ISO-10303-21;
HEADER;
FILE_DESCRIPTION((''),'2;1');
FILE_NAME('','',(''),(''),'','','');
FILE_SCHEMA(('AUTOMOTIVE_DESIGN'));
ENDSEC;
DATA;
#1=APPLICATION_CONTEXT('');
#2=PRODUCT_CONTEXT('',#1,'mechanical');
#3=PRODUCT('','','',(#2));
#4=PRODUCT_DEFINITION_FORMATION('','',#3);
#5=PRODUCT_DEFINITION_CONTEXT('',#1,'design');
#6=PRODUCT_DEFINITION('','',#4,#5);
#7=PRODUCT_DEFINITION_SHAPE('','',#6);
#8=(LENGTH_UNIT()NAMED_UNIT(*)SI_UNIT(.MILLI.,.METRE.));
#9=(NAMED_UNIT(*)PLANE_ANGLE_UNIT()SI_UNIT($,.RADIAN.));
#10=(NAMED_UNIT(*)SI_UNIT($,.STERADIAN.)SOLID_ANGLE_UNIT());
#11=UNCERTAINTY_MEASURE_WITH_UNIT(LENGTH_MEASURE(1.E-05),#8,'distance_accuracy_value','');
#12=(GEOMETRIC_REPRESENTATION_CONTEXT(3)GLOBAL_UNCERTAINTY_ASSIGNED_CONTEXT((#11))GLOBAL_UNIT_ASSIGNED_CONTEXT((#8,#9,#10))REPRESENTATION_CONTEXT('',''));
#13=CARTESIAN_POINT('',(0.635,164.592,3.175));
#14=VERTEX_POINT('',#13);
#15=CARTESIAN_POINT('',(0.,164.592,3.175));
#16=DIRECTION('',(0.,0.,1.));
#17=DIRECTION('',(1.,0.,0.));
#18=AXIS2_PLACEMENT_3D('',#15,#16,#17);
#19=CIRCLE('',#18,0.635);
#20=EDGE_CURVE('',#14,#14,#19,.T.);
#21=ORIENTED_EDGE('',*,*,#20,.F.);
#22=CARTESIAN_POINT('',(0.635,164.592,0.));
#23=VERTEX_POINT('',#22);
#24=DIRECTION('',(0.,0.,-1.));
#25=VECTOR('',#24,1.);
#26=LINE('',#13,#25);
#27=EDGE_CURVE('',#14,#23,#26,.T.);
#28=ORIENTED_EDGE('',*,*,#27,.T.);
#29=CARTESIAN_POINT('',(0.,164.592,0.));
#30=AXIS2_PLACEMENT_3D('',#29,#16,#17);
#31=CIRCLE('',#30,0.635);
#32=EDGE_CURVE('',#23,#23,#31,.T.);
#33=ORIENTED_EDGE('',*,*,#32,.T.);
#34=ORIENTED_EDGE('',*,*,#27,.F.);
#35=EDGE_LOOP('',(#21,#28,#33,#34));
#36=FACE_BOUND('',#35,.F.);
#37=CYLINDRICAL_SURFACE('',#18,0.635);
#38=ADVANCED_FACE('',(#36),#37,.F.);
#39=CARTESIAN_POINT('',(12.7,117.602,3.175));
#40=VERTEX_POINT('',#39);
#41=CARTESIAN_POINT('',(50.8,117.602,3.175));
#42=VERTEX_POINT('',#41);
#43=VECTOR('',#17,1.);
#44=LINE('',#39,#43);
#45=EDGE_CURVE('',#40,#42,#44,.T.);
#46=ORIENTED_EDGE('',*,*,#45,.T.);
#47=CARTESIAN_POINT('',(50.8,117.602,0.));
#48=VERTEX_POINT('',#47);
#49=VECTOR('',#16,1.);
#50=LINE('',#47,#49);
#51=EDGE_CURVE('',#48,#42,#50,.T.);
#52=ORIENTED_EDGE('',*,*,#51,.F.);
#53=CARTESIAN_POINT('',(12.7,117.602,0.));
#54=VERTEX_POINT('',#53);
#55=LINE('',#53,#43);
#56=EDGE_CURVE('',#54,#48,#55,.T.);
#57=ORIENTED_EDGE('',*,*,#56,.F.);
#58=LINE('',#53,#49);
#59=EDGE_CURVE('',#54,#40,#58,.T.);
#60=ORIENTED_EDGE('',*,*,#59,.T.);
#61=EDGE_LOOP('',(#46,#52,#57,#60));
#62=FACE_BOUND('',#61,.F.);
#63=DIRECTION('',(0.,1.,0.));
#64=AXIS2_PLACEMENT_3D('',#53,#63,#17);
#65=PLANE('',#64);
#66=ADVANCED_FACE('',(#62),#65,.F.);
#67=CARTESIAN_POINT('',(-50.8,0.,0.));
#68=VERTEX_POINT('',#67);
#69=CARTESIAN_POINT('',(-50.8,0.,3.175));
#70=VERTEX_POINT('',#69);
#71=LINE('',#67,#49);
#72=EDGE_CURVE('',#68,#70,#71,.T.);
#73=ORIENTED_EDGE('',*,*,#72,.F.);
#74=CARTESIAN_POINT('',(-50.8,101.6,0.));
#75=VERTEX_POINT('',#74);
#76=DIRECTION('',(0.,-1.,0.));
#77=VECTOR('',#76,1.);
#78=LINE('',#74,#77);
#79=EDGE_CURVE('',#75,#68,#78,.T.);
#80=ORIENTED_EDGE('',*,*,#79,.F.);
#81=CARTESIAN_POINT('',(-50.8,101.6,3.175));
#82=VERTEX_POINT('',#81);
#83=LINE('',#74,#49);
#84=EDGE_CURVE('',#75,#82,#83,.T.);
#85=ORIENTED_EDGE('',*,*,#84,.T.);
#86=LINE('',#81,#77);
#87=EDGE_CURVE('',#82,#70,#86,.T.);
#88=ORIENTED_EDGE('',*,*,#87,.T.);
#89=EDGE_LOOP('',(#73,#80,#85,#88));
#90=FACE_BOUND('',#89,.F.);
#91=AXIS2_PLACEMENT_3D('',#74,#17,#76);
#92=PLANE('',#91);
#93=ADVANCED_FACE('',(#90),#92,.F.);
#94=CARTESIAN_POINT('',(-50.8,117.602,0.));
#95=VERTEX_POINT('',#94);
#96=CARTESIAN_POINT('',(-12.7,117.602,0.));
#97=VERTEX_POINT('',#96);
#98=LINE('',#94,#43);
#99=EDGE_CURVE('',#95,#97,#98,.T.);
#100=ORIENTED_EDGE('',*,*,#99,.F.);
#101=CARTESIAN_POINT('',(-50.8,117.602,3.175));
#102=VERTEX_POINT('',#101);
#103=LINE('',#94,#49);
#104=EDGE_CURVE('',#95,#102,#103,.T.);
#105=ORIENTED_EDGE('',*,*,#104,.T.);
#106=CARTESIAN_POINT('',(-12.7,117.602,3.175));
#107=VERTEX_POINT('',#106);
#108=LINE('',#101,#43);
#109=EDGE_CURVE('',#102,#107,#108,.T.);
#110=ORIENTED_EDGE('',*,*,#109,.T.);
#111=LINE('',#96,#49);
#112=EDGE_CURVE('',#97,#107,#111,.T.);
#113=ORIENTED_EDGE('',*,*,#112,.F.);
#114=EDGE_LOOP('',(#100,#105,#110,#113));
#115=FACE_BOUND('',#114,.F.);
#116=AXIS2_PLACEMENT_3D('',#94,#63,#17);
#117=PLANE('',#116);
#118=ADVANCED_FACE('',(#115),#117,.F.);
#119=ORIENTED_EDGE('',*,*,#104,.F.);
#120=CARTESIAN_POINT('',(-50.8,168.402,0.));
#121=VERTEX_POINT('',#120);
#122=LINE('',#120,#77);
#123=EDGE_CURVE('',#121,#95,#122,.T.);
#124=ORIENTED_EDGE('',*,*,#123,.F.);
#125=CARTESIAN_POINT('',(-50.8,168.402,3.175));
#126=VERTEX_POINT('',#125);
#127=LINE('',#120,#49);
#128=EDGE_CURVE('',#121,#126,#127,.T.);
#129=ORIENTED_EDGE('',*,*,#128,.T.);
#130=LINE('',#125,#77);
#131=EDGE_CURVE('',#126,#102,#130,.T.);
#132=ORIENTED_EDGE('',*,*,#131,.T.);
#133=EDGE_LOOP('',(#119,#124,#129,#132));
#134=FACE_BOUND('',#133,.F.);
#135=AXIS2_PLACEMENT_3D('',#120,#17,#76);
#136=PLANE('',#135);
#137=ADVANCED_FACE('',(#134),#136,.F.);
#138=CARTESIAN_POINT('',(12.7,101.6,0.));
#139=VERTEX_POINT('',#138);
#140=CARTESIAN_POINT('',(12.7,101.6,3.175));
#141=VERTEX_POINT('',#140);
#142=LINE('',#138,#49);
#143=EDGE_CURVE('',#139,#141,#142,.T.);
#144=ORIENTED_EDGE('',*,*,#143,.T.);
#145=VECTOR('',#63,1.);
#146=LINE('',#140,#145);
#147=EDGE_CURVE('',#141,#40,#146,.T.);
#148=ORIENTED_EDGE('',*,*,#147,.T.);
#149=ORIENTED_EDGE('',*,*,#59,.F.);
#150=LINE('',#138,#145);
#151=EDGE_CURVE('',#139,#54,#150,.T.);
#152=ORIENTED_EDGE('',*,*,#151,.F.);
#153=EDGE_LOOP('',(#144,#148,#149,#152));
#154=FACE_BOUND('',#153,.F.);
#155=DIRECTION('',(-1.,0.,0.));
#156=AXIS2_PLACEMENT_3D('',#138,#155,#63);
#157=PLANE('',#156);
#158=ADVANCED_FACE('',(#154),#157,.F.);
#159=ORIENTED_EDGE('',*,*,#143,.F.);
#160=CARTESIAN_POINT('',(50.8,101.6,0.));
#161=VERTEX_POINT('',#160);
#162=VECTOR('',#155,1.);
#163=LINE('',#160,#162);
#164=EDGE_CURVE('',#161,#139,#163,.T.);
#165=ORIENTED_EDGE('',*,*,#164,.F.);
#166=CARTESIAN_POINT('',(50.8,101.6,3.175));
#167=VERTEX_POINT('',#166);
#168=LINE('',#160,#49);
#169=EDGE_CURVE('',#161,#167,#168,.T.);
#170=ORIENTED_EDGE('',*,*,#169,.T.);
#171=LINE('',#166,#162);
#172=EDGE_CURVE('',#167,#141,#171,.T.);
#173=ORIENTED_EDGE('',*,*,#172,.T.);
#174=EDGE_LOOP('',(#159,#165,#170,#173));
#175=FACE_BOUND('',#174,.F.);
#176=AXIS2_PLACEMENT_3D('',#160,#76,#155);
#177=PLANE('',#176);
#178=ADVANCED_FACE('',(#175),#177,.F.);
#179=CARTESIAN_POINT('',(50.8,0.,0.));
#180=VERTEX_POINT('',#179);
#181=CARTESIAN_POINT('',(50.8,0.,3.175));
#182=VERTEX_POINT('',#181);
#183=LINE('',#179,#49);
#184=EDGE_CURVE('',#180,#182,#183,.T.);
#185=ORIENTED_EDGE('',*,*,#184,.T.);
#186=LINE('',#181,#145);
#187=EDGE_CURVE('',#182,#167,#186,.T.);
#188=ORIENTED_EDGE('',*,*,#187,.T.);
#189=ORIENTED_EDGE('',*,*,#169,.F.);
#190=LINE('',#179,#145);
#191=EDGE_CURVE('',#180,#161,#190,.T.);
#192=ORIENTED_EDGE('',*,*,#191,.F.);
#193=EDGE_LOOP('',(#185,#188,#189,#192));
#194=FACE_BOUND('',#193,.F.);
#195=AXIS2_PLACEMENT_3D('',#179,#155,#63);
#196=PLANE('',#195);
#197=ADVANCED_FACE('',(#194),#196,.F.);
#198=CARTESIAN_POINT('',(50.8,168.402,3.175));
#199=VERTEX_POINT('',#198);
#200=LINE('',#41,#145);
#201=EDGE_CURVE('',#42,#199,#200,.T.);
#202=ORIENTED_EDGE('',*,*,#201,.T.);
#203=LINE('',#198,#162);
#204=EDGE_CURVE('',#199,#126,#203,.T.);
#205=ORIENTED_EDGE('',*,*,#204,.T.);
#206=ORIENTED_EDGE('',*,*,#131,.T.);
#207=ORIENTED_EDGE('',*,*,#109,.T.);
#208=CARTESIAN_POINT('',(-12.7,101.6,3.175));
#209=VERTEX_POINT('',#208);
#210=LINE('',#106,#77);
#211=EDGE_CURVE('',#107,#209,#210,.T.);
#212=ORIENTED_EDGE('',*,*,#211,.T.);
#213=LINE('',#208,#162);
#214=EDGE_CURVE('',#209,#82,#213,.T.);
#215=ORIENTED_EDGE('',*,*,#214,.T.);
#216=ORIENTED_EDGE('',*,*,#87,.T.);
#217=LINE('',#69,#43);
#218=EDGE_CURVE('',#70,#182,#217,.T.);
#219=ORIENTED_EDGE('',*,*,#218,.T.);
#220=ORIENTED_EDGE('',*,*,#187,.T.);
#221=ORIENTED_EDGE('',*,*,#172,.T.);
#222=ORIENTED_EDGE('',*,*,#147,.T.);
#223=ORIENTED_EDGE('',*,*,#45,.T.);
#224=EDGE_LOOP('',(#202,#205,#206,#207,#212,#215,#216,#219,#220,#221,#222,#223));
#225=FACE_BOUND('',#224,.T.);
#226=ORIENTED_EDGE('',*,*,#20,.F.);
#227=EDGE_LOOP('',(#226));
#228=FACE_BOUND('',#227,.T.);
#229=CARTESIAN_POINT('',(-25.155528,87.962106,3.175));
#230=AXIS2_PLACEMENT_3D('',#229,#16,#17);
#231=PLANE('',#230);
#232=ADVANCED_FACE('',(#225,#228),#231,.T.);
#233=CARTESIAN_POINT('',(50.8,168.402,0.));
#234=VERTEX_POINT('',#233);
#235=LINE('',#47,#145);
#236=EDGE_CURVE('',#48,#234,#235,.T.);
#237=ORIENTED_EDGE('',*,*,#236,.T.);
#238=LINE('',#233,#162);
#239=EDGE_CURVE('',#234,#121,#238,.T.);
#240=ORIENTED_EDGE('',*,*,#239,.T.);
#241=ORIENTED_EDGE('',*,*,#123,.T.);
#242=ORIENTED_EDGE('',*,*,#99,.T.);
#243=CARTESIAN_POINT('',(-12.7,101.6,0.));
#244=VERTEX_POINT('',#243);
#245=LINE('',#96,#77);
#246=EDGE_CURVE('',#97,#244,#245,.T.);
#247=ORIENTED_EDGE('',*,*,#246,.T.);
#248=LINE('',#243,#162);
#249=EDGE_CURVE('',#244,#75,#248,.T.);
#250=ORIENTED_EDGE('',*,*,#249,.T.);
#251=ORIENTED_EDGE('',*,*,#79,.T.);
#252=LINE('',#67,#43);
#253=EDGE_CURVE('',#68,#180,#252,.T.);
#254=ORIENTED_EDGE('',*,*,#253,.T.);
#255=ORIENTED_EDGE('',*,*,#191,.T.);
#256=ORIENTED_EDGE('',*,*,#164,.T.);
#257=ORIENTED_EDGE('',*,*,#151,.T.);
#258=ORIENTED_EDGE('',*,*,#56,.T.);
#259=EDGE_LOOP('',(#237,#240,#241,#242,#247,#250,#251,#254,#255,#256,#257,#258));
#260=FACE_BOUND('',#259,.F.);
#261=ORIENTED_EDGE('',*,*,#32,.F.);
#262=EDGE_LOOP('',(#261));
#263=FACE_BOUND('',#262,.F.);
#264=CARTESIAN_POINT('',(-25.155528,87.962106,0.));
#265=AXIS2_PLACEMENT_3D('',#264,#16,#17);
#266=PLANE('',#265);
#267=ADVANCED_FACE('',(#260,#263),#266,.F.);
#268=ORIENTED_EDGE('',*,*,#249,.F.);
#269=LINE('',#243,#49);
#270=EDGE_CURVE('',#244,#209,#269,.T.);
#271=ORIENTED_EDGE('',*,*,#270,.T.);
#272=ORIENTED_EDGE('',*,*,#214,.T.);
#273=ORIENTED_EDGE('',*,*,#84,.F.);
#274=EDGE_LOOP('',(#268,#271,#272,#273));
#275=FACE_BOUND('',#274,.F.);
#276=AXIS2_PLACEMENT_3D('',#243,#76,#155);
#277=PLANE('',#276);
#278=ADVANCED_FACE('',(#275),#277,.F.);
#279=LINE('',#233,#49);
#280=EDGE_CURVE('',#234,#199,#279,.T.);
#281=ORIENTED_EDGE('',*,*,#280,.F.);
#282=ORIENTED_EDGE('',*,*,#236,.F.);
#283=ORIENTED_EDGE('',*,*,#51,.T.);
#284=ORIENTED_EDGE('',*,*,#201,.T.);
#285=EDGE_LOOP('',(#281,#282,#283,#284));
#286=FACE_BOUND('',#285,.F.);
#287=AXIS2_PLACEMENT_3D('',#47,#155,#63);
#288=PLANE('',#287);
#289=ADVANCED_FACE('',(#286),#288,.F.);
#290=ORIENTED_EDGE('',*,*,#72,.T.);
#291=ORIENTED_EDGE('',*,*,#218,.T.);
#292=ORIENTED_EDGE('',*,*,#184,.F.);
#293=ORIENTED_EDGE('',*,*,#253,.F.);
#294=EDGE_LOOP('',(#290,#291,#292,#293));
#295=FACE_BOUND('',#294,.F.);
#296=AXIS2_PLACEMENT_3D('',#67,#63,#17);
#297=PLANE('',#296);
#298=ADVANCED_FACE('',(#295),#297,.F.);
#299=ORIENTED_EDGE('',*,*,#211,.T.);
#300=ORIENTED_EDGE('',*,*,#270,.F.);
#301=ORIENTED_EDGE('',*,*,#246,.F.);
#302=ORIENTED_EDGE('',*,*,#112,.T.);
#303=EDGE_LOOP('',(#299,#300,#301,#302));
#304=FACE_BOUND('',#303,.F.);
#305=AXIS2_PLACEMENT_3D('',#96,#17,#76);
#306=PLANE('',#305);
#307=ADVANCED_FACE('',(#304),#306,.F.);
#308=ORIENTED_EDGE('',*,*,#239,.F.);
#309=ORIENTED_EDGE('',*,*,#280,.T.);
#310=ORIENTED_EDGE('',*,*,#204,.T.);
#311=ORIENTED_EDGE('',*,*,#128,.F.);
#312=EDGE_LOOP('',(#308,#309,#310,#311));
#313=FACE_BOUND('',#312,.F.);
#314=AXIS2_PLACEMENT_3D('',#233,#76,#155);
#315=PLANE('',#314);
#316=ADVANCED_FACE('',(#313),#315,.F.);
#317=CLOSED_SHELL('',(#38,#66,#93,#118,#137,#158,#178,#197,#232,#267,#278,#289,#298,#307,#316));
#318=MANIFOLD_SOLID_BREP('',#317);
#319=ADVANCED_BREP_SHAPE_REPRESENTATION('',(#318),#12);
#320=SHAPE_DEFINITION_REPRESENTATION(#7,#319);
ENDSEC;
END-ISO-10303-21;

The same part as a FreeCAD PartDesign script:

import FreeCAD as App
import Part
import Sketcher

V = App.Vector
Q = App.Units.Quantity


def add_polygon(sketch, points):
    """Adds a closed chain of lines whose ends are joined by coincident constraints."""
    first, n = sketch.GeometryCount, len(points)
    for a, b in zip(points, points[1:] + points[:1]):
        sketch.addGeometry(Part.LineSegment(App.Vector(*a, 0), App.Vector(*b, 0)), False)
    for i in range(n):
        sketch.addConstraint(Sketcher.Constraint("Coincident", first + i, 2, first + (i + 1) % n, 1))

doc = App.newDocument("Part")
params = doc.addObject("Spreadsheet::Sheet", "Params")
for row, (alias, value) in enumerate([
    ("sketch1_width", "4 in"),
    ("sketch1_height", "2 in"),
    ("sketch1_width2", "1.5 in"),
    ("sketch1_height2", "0.63 in"),
    ("pad1_length", "0.125 in"),
    ("sketch2_diameter", "0.05 in"),
], start=1):
    params.set(f"A{row}", alias)
    params.set(f"B{row}", "=" + value)
    params.setAlias(f"B{row}", alias)

body = doc.addObject("PartDesign::Body", "Body")

sketch1 = doc.addObject("Sketcher::SketchObject", "Sketch")
body.addObject(sketch1)
sketch1.AttachmentSupport = (doc.XY_Plane, [""])
sketch1.MapMode = "FlatFace"
add_polygon(sketch1, [(-51, 0), (51, 0), (51, 102), (13, 102), (13, 118), (51, 118), (51, 168), (-51, 168), (-51, 118), (-13, 118), (-13, 102), (-51, 102)])
sketch1.addConstraint([
    Sketcher.Constraint("Horizontal", 0),
    Sketcher.Constraint("Vertical", 1),
    Sketcher.Constraint("Horizontal", 2),
    Sketcher.Constraint("Vertical", 3),
    Sketcher.Constraint("Horizontal", 4),
    Sketcher.Constraint("Vertical", 5),
    Sketcher.Constraint("Horizontal", 6),
    Sketcher.Constraint("Vertical", 7),
    Sketcher.Constraint("Horizontal", 8),
    Sketcher.Constraint("Vertical", 9),
    Sketcher.Constraint("Horizontal", 10),
    Sketcher.Constraint("Vertical", 11),
    Sketcher.Constraint("Symmetric", 0, 2, 11, 2, -1, 1),
    Sketcher.Constraint("Symmetric", 4, 2, 7, 2, -2),
    Sketcher.Constraint("Symmetric", 2, 2, 9, 2, -2),
    Sketcher.Constraint("Vertical", 1, 2, 4, 2),
    Sketcher.Constraint("Equal", 6, 1),
    Sketcher.Constraint("DistanceX", 0, 1, 0, 2, Q("4 in")),
    Sketcher.Constraint("DistanceY", 5, 1, 5, 2, Q("2 in")),
    Sketcher.Constraint("DistanceX", 2, 2, 2, 1, Q("1.5 in")),
    Sketcher.Constraint("DistanceY", 3, 1, 3, 2, Q("0.63 in")),
])
sketch1.setExpression("Constraints[29]", "Params.sketch1_width")
sketch1.setExpression("Constraints[30]", "Params.sketch1_height")
sketch1.setExpression("Constraints[31]", "Params.sketch1_width2")
sketch1.setExpression("Constraints[32]", "Params.sketch1_height2")
pad1 = doc.addObject("PartDesign::Pad", "Pad")
body.addObject(pad1)
pad1.Profile = sketch1
pad1.setExpression("Length", "Params.pad1_length")

sketch2 = doc.addObject("Sketcher::SketchObject", "Sketch001")
body.addObject(sketch2)
sketch2.AttachmentSupport = (doc.XY_Plane, [""])
sketch2.MapMode = "FlatFace"
sketch2.AttachmentOffset = App.Placement(V(0, 0, 0.125 * 25.4), App.Rotation())
sketch2.addGeometry(Part.Circle(V(0, 164.6, 0), V(0, 0, 1), 0.6), False)
sketch2.addConstraint([
    Sketcher.Constraint("PointOnObject", 0, 3, -2),
    Sketcher.Constraint("Diameter", 0, Q("0.05 in")),
    Sketcher.Constraint("DistanceY", -1, 1, 0, 3, Q("6.48 in")),
])
sketch2.setExpression("Constraints[1]", "Params.sketch2_diameter")
pocket1 = doc.addObject("PartDesign::Pocket", "Pocket")
body.addObject(pocket1)
pocket1.Profile = sketch2
pocket1.Type = "ThroughAll"

doc.recompute()
